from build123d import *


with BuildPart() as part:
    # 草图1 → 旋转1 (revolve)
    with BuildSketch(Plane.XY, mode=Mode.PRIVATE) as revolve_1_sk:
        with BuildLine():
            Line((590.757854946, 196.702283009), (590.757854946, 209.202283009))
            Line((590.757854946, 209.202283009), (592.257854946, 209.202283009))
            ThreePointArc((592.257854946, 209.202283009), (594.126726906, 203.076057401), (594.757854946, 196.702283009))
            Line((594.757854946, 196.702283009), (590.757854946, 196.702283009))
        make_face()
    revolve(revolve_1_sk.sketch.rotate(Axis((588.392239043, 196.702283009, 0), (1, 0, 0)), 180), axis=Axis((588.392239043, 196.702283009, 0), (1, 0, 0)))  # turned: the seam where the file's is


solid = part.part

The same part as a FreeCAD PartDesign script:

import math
import FreeCAD as App
import Part
import Sketcher

V = App.Vector

doc = App.newDocument("Part")
params = doc.addObject("Spreadsheet::Sheet", "Params")
for row, (alias, value) in enumerate([
    ("sketch1_radius", "32.5 mm"),
    ("sketch1_width", "4 mm"),
    ("sketch1_width2", "1.5 mm"),
    ("revolution_angle", "360 deg"),
], start=1):
    params.set(f"A{row}", alias)
    params.set(f"B{row}", "=" + value)
    params.setAlias(f"B{row}", alias)

body = doc.addObject("PartDesign::Body", "Body")

sketch1 = doc.addObject("Sketcher::SketchObject", "Sketch")
body.addObject(sketch1)
sketch1.AttachmentSupport = (doc.XY_Plane, [""])
sketch1.MapMode = "FlatFace"
sketch1.addGeometry(Part.LineSegment(V(590.8, 209.2, 0), V(590.8, 196.7, 0)), False)
sketch1.addGeometry(Part.LineSegment(V(590.8, 196.7, 0), V(594.8, 196.7, 0)), False)
sketch1.addGeometry(Part.ArcOfCircle(Part.Circle(V(562.3, 196.7, 0), V(0, 0, 1), 32.5), math.radians(0), math.radians(23)), False)
sketch1.addGeometry(Part.LineSegment(V(592.3, 209.2, 0), V(590.8, 209.2, 0)), False)
sketch1.addGeometry(Part.LineSegment(V(562.3, 196.7, 0), V(594.8, 196.7, 0)), True)
sketch1.addConstraint(Sketcher.Constraint("Coincident", 0, 2, 1, 1))
sketch1.addConstraint(Sketcher.Constraint("Coincident", 1, 2, 2, 1))
sketch1.addConstraint(Sketcher.Constraint("Coincident", 2, 2, 3, 1))
sketch1.addConstraint(Sketcher.Constraint("Coincident", 3, 2, 0, 1))
sketch1.addConstraint(Sketcher.Constraint("Vertical", 0))
sketch1.addConstraint(Sketcher.Constraint("Horizontal", 1))
sketch1.addConstraint(Sketcher.Constraint("Horizontal", 3))
sketch1.addConstraint(Sketcher.Constraint("Horizontal", 4))
sketch1.addConstraint(Sketcher.Constraint("Coincident", 4, 1, 2, 3))
sketch1.addConstraint(Sketcher.Constraint("Coincident", 4, 2, 1, 2))
sketch1.addConstraint(Sketcher.Constraint("Radius", 2, 32.5))
sketch1.addConstraint(Sketcher.Constraint("DistanceX", 1, 1, 1, 2, 4.0))
sketch1.addConstraint(Sketcher.Constraint("DistanceX", 3, 2, 3, 1, 1.5))
sketch1.addConstraint(Sketcher.Constraint("DistanceX", -1, 1, 2, 3, 562.257855))
sketch1.addConstraint(Sketcher.Constraint("DistanceY", -1, 1, 2, 3, 196.702283))
sketch1.setExpression("Constraints[10]", "Params.sketch1_radius")
sketch1.setExpression("Constraints[11]", "Params.sketch1_width")
sketch1.setExpression("Constraints[12]", "Params.sketch1_width2")
revolution = doc.addObject("PartDesign::Revolution", "Revolution")
body.addObject(revolution)
revolution.Profile = sketch1
revolution.ReferenceAxis = (sketch1, ["Axis0"])
revolution.setExpression("Angle", "Params.revolution_angle")

doc.recompute()
